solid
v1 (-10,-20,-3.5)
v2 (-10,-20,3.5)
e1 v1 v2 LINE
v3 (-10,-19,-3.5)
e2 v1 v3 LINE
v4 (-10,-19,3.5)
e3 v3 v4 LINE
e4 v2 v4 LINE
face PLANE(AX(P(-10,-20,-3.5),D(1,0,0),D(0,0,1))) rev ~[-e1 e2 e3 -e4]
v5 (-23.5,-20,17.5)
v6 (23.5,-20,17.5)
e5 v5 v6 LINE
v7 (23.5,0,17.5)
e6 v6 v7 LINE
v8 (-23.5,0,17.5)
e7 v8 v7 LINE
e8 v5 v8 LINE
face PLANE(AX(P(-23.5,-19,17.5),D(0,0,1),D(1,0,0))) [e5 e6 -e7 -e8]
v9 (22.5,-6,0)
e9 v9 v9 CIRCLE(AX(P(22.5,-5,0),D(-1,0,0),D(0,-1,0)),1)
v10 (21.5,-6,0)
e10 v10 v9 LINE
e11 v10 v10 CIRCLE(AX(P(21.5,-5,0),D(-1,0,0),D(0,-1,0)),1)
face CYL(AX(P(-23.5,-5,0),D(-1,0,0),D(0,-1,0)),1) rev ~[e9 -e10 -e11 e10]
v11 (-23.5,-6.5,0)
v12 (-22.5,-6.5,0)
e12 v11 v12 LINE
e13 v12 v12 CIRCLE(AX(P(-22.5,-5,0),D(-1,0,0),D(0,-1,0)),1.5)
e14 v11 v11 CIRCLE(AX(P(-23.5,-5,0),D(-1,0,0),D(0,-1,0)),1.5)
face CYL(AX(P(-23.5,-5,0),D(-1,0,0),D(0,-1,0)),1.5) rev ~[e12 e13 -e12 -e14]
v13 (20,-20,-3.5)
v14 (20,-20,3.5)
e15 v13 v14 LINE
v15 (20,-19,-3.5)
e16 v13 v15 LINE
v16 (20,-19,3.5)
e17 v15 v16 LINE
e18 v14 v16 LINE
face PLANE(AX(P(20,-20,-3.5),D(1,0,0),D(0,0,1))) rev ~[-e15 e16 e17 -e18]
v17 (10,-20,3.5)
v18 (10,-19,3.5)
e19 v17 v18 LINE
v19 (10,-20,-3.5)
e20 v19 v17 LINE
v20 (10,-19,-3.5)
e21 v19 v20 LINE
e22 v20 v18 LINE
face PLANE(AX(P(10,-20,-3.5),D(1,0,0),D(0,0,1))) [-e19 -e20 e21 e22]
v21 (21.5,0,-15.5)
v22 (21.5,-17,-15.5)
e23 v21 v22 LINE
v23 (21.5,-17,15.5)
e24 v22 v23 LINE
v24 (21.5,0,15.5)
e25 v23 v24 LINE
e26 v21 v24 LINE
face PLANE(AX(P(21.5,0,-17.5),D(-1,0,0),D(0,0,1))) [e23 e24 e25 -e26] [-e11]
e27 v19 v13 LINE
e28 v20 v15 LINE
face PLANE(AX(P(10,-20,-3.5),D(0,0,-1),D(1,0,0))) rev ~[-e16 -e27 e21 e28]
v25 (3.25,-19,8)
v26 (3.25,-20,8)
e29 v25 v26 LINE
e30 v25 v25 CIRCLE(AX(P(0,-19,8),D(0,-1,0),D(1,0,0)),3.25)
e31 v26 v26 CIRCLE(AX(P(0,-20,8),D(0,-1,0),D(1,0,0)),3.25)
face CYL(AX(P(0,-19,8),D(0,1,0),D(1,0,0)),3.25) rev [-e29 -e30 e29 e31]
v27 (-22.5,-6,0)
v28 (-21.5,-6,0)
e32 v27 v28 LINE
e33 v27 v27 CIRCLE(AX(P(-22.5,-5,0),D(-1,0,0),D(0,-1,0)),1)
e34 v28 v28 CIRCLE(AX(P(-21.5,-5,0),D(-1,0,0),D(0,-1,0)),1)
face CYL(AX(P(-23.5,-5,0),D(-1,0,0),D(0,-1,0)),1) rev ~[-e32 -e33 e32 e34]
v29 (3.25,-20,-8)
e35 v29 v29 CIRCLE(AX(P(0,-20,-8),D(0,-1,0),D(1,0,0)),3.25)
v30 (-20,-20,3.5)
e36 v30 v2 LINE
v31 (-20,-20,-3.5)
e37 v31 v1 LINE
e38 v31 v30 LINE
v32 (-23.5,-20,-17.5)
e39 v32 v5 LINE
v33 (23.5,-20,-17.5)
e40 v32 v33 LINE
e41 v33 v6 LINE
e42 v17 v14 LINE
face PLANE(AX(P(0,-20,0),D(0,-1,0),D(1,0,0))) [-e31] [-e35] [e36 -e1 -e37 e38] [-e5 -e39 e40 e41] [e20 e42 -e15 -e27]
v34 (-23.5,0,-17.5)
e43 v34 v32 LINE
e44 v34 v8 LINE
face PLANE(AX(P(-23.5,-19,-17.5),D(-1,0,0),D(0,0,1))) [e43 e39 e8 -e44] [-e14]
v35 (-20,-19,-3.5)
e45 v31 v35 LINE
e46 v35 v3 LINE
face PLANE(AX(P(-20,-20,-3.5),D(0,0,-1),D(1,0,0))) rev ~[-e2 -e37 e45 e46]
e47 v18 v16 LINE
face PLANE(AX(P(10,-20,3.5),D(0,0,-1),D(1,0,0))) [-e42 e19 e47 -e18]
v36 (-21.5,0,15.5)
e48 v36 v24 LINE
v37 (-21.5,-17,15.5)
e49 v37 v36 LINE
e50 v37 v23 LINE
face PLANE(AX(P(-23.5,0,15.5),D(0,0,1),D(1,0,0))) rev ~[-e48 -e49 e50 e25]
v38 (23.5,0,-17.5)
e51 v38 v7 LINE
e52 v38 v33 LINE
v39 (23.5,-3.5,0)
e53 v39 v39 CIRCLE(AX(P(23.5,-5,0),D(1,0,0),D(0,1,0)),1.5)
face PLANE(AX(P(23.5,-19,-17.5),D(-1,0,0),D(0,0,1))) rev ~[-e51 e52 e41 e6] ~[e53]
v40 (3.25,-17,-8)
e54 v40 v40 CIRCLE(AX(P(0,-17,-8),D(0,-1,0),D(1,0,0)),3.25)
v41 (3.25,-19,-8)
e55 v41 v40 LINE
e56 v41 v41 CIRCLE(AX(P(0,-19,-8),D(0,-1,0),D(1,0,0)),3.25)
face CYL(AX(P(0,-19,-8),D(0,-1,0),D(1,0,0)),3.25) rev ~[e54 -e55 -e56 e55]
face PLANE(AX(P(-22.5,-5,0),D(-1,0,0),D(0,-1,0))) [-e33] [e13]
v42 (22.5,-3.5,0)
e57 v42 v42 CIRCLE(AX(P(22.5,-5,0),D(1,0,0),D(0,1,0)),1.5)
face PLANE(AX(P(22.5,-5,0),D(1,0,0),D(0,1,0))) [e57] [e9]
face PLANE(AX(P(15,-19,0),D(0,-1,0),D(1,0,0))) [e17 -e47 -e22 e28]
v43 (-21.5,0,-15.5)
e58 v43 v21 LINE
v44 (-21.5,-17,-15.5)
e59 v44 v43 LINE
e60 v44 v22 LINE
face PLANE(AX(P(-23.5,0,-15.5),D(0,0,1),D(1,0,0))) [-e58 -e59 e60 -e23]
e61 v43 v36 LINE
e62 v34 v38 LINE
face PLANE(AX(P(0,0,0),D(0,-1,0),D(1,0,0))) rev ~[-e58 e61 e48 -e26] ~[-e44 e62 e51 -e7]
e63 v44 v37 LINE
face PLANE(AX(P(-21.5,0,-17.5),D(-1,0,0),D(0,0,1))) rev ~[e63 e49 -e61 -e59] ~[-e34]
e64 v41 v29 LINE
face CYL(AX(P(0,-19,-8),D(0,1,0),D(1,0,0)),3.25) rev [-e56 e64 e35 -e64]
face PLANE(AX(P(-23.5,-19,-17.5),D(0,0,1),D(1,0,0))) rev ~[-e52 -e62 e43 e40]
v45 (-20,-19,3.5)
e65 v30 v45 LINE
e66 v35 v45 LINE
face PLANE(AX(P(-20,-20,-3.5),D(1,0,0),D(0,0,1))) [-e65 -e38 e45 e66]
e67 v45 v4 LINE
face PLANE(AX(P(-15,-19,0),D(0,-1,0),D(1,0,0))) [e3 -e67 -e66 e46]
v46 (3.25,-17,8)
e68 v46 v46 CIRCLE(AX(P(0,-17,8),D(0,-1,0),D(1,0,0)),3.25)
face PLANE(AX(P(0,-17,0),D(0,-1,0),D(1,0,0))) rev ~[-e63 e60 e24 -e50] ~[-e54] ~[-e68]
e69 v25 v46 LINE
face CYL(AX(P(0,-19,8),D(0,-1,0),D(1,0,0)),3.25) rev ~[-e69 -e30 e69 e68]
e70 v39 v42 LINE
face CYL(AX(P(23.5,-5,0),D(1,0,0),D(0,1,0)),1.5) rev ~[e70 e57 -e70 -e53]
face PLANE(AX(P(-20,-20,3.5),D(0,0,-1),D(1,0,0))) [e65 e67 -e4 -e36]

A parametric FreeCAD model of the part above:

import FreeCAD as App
import Part
import Sketcher
Q = App.Units.Quantity


def faces_at(feature, points):
    """Names of the faces that lie closest to the given points."""
    faces = feature.Shape.Faces
    near = lambda p: min(range(len(faces)), key=lambda i: faces[i].distToShape(Part.Vertex(*p))[0])
    return sorted({f"Face{near(p) + 1}" for p in points})


def add_polygon(sketch, points):
    """Adds a closed chain of lines whose ends are joined by coincident constraints."""
    first, n = sketch.GeometryCount, len(points)
    for a, b in zip(points, points[1:] + points[:1]):
        sketch.addGeometry(Part.LineSegment(App.Vector(*a, 0), App.Vector(*b, 0)), False)
    for i in range(n):
        sketch.addConstraint(Sketcher.Constraint("Coincident", first + i, 2, first + (i + 1) % n, 1))

doc = App.newDocument("Part")
params = doc.addObject("Spreadsheet::Sheet", "Params")
for row, (alias, value) in enumerate([
    ("sketch1_width", "47 mm"),
    ("sketch1_height", "35 mm"),
    ("pad1_length", "19 mm"),
    ("thickness_wall", "2 mm"),
    ("sketch2_diameter", "6.5 mm"),
    ("sketch3_diameter", "6.5 mm"),
    ("sketch3_width", "47 mm"),
    ("sketch3_height", "35 mm"),
    ("pad2_length", "1 mm"),
    ("sketch4_diameter", "2 mm"),
    ("sketch5_diameter", "3 mm"),
    ("pocket3_length", "1 mm"),
    ("sketch6_diameter", "3 mm"),
    ("pocket4_length", "1 mm"),
    ("sketch7_width", "10 mm"),
    ("sketch7_height", "7 mm"),
    ("pocket5_length", "1 mm"),
], start=1):
    params.set(f"A{row}", alias)
    params.set(f"B{row}", "=" + value)
    params.setAlias(f"B{row}", alias)

body = doc.addObject("PartDesign::Body", "Body")

sketch1 = body.newObject("Sketcher::SketchObject", "Sketch")
sketch1.AttachmentSupport = (doc.getObject("XZ_Plane"), [""])
sketch1.MapMode = "FlatFace"
add_polygon(sketch1, [(-24, 18), (-24, -18), (24, -18), (24, 18)])
sketch1.addConstraint(Sketcher.Constraint("Vertical", 0))
sketch1.addConstraint(Sketcher.Constraint("Horizontal", 1))
sketch1.addConstraint(Sketcher.Constraint("Vertical", 2))
sketch1.addConstraint(Sketcher.Constraint("Horizontal", 3))
sketch1.addConstraint(Sketcher.Constraint("Symmetric", 0, 2, 2, 2, -1, 1))
sketch1.addConstraint(Sketcher.Constraint("DistanceX", 1, 1, 1, 2, Q("47 mm")))
sketch1.addConstraint(Sketcher.Constraint("DistanceY", 0, 2, 0, 1, Q("35 mm")))
sketch1.setExpression("Constraints[9]", "Params.sketch1_width")
sketch1.setExpression("Constraints[10]", "Params.sketch1_height")
pad1 = body.newObject("PartDesign::Pad", "Pad")
pad1.Profile = sketch1
pad1.setExpression("Length", "Params.pad1_length")
doc.recompute()

thickness = body.newObject("PartDesign::Thickness", "Thickness")
thickness.Base = (pad1, faces_at(pad1, [(0, 0, 0)]))
thickness.setExpression("Value", "Params.thickness_wall")
thickness.Reversed = True
thickness.Join = "Arc"

sketch2 = body.newObject("Sketcher::SketchObject", "Sketch001")
sketch2.AttachmentSupport = (doc.getObject("XZ_Plane"), [""])
sketch2.MapMode = "FlatFace"
sketch2.AttachmentOffset = App.Placement(App.Vector(0, 0, 19), App.Rotation())
sketch2.addGeometry(Part.Circle(App.Vector(0, 8, 0), App.Vector(0, 0, 1), 3.2), False)
sketch2.addGeometry(Part.Circle(App.Vector(0, -8, 0), App.Vector(0, 0, 1), 3.2), False)
sketch2.addConstraint(Sketcher.Constraint("Equal", 0, 1))
sketch2.addConstraint(Sketcher.Constraint("Symmetric", 0, 3, 1, 3, -1, 1))
sketch2.addConstraint(Sketcher.Constraint("PointOnObject", 0, 3, -2))
sketch2.addConstraint(Sketcher.Constraint("Diameter", 0, Q("6.5 mm")))
sketch2.addConstraint(Sketcher.Constraint("DistanceY", -1, 1, 0, 3, Q("8 mm")))
sketch2.setExpression("Constraints[3]", "Params.sketch2_diameter")
pocket1 = body.newObject("PartDesign::Pocket", "Pocket")
pocket1.Profile = sketch2
pocket1.Type = "ThroughAll"

sketch3 = body.newObject("Sketcher::SketchObject", "Sketch002")
sketch3.AttachmentSupport = (doc.getObject("XZ_Plane"), [""])
sketch3.MapMode = "FlatFace"
sketch3.AttachmentOffset = App.Placement(App.Vector(0, 0, 19), App.Rotation())
add_polygon(sketch3, [(-23.5, 17.5), (-23.5, -17.5), (23.5, -17.5), (23.5, 17.5)])
sketch3.addGeometry(Part.Circle(App.Vector(0, -8, 0), App.Vector(0, 0, 1), 3.2), False)
sketch3.addGeometry(Part.Circle(App.Vector(0, 8, 0), App.Vector(0, 0, 1), 3.2), False)
sketch3.addConstraint(Sketcher.Constraint("Vertical", 0))
sketch3.addConstraint(Sketcher.Constraint("Horizontal", 1))
sketch3.addConstraint(Sketcher.Constraint("Vertical", 2))
sketch3.addConstraint(Sketcher.Constraint("Horizontal", 3))
sketch3.addConstraint(Sketcher.Constraint("Equal", 4, 5))
sketch3.addConstraint(Sketcher.Constraint("Symmetric", 4, 3, 5, 3, -1, 1))
sketch3.addConstraint(Sketcher.Constraint("Symmetric", 0, 2, 2, 2, -1, 1))
sketch3.addConstraint(Sketcher.Constraint("PointOnObject", 4, 3, -2))
sketch3.addConstraint(Sketcher.Constraint("Diameter", 4, Q("6.5 mm")))
sketch3.addConstraint(Sketcher.Constraint("DistanceX", 1, 1, 1, 2, Q("47 mm")))
sketch3.addConstraint(Sketcher.Constraint("DistanceY", 0, 2, 0, 1, Q("35 mm")))
sketch3.addConstraint(Sketcher.Constraint("DistanceY", 4, 3, -1, 1, Q("8 mm")))
sketch3.setExpression("Constraints[12]", "Params.sketch3_diameter")
sketch3.setExpression("Constraints[13]", "Params.sketch3_width")
sketch3.setExpression("Constraints[14]", "Params.sketch3_height")
pad2 = body.newObject("PartDesign::Pad", "Pad001")
pad2.Profile = sketch3
pad2.setExpression("Length", "Params.pad2_length")

sketch4 = body.newObject("Sketcher::SketchObject", "Sketch003")
sketch4.AttachmentSupport = (doc.getObject("YZ_Plane"), [""])
sketch4.MapMode = "FlatFace"
sketch4.AttachmentOffset = App.Placement(App.Vector(0, 0, -23.5), App.Rotation())
sketch4.addGeometry(Part.Circle(App.Vector(-5, 0, 0), App.Vector(0, 0, 1), 1), False)
sketch4.addConstraint(Sketcher.Constraint("PointOnObject", 0, 3, -1))
sketch4.addConstraint(Sketcher.Constraint("Diameter", 0, Q("2 mm")))
sketch4.addConstraint(Sketcher.Constraint("DistanceX", 0, 3, -1, 1, Q("5 mm")))
sketch4.setExpression("Constraints[1]", "Params.sketch4_diameter")
pocket2 = body.newObject("PartDesign::Pocket", "Pocket001")
pocket2.Profile = sketch4
pocket2.Type = "ThroughAll"
pocket2.Reversed = True

sketch5 = body.newObject("Sketcher::SketchObject", "Sketch004")
sketch5.AttachmentSupport = (doc.getObject("YZ_Plane"), [""])
sketch5.MapMode = "FlatFace"
sketch5.AttachmentOffset = App.Placement(App.Vector(0, 0, -23.5), App.Rotation())
sketch5.addGeometry(Part.Circle(App.Vector(-5, 0, 0), App.Vector(0, 0, 1), 1.5), False)
sketch5.addConstraint(Sketcher.Constraint("PointOnObject", 0, 3, -1))
sketch5.addConstraint(Sketcher.Constraint("Diameter", 0, Q("3 mm")))
sketch5.addConstraint(Sketcher.Constraint("DistanceX", 0, 3, -1, 1, Q("5 mm")))
sketch5.setExpression("Constraints[1]", "Params.sketch5_diameter")
pocket3 = body.newObject("PartDesign::Pocket", "Pocket002")
pocket3.Profile = sketch5
pocket3.setExpression("Length", "Params.pocket3_length")
pocket3.Reversed = True

sketch6 = body.newObject("Sketcher::SketchObject", "Sketch005")
sketch6.AttachmentSupport = (doc.getObject("YZ_Plane"), [""])
sketch6.MapMode = "FlatFace"
sketch6.AttachmentOffset = App.Placement(App.Vector(0, 0, 23.5), App.Rotation())
sketch6.addGeometry(Part.Circle(App.Vector(-5, 0, 0), App.Vector(0, 0, 1), 1.5), False)
sketch6.addConstraint(Sketcher.Constraint("PointOnObject", 0, 3, -1))
sketch6.addConstraint(Sketcher.Constraint("Diameter", 0, Q("3 mm")))
sketch6.addConstraint(Sketcher.Constraint("DistanceX", 0, 3, -1, 1, Q("5 mm")))
sketch6.setExpression("Constraints[1]", "Params.sketch6_diameter")
pocket4 = body.newObject("PartDesign::Pocket", "Pocket003")
pocket4.Profile = sketch6
pocket4.setExpression("Length", "Params.pocket4_length")

sketch7 = body.newObject("Sketcher::SketchObject", "Sketch006")
sketch7.AttachmentSupport = (doc.getObject("XZ_Plane"), [""])
sketch7.MapMode = "FlatFace"
sketch7.AttachmentOffset = App.Placement(App.Vector(0, 0, 20), App.Rotation())
add_polygon(sketch7, [(-20, 4), (-20, -4), (-10, -4), (-10, 4)])
add_polygon(sketch7, [(10, 4), (10, -4), (20, -4), (20, 4)])
sketch7.addConstraint(Sketcher.Constraint("Vertical", 0))
sketch7.addConstraint(Sketcher.Constraint("Horizontal", 1))
sketch7.addConstraint(Sketcher.Constraint("Vertical", 2))
sketch7.addConstraint(Sketcher.Constraint("Horizontal", 3))
sketch7.addConstraint(Sketcher.Constraint("Vertical", 4))
sketch7.addConstraint(Sketcher.Constraint("Horizontal", 5))
sketch7.addConstraint(Sketcher.Constraint("Vertical", 6))
sketch7.addConstraint(Sketcher.Constraint("Horizontal", 7))
sketch7.addConstraint(Sketcher.Constraint("Symmetric", 2, 2, 4, 2, -1, 1))
sketch7.addConstraint(Sketcher.Constraint("Symmetric", 0, 2, 6, 2, -1, 1))
sketch7.addConstraint(Sketcher.Constraint("Horizontal", 1, 2, 4, 2))
sketch7.addConstraint(Sketcher.Constraint("DistanceX", 1, 1, 1, 2, Q("10 mm")))
sketch7.addConstraint(Sketcher.Constraint("DistanceY", 0, 2, 0, 1, Q("7 mm")))
sketch7.addConstraint(Sketcher.Constraint("DistanceX", 0, 2, -1, 1, Q("20 mm")))
sketch7.setExpression("Constraints[19]", "Params.sketch7_width")
sketch7.setExpression("Constraints[20]", "Params.sketch7_height")
pocket5 = body.newObject("PartDesign::Pocket", "Pocket004")
pocket5.Profile = sketch7
pocket5.setExpression("Length", "Params.pocket5_length")

doc.recompute()
